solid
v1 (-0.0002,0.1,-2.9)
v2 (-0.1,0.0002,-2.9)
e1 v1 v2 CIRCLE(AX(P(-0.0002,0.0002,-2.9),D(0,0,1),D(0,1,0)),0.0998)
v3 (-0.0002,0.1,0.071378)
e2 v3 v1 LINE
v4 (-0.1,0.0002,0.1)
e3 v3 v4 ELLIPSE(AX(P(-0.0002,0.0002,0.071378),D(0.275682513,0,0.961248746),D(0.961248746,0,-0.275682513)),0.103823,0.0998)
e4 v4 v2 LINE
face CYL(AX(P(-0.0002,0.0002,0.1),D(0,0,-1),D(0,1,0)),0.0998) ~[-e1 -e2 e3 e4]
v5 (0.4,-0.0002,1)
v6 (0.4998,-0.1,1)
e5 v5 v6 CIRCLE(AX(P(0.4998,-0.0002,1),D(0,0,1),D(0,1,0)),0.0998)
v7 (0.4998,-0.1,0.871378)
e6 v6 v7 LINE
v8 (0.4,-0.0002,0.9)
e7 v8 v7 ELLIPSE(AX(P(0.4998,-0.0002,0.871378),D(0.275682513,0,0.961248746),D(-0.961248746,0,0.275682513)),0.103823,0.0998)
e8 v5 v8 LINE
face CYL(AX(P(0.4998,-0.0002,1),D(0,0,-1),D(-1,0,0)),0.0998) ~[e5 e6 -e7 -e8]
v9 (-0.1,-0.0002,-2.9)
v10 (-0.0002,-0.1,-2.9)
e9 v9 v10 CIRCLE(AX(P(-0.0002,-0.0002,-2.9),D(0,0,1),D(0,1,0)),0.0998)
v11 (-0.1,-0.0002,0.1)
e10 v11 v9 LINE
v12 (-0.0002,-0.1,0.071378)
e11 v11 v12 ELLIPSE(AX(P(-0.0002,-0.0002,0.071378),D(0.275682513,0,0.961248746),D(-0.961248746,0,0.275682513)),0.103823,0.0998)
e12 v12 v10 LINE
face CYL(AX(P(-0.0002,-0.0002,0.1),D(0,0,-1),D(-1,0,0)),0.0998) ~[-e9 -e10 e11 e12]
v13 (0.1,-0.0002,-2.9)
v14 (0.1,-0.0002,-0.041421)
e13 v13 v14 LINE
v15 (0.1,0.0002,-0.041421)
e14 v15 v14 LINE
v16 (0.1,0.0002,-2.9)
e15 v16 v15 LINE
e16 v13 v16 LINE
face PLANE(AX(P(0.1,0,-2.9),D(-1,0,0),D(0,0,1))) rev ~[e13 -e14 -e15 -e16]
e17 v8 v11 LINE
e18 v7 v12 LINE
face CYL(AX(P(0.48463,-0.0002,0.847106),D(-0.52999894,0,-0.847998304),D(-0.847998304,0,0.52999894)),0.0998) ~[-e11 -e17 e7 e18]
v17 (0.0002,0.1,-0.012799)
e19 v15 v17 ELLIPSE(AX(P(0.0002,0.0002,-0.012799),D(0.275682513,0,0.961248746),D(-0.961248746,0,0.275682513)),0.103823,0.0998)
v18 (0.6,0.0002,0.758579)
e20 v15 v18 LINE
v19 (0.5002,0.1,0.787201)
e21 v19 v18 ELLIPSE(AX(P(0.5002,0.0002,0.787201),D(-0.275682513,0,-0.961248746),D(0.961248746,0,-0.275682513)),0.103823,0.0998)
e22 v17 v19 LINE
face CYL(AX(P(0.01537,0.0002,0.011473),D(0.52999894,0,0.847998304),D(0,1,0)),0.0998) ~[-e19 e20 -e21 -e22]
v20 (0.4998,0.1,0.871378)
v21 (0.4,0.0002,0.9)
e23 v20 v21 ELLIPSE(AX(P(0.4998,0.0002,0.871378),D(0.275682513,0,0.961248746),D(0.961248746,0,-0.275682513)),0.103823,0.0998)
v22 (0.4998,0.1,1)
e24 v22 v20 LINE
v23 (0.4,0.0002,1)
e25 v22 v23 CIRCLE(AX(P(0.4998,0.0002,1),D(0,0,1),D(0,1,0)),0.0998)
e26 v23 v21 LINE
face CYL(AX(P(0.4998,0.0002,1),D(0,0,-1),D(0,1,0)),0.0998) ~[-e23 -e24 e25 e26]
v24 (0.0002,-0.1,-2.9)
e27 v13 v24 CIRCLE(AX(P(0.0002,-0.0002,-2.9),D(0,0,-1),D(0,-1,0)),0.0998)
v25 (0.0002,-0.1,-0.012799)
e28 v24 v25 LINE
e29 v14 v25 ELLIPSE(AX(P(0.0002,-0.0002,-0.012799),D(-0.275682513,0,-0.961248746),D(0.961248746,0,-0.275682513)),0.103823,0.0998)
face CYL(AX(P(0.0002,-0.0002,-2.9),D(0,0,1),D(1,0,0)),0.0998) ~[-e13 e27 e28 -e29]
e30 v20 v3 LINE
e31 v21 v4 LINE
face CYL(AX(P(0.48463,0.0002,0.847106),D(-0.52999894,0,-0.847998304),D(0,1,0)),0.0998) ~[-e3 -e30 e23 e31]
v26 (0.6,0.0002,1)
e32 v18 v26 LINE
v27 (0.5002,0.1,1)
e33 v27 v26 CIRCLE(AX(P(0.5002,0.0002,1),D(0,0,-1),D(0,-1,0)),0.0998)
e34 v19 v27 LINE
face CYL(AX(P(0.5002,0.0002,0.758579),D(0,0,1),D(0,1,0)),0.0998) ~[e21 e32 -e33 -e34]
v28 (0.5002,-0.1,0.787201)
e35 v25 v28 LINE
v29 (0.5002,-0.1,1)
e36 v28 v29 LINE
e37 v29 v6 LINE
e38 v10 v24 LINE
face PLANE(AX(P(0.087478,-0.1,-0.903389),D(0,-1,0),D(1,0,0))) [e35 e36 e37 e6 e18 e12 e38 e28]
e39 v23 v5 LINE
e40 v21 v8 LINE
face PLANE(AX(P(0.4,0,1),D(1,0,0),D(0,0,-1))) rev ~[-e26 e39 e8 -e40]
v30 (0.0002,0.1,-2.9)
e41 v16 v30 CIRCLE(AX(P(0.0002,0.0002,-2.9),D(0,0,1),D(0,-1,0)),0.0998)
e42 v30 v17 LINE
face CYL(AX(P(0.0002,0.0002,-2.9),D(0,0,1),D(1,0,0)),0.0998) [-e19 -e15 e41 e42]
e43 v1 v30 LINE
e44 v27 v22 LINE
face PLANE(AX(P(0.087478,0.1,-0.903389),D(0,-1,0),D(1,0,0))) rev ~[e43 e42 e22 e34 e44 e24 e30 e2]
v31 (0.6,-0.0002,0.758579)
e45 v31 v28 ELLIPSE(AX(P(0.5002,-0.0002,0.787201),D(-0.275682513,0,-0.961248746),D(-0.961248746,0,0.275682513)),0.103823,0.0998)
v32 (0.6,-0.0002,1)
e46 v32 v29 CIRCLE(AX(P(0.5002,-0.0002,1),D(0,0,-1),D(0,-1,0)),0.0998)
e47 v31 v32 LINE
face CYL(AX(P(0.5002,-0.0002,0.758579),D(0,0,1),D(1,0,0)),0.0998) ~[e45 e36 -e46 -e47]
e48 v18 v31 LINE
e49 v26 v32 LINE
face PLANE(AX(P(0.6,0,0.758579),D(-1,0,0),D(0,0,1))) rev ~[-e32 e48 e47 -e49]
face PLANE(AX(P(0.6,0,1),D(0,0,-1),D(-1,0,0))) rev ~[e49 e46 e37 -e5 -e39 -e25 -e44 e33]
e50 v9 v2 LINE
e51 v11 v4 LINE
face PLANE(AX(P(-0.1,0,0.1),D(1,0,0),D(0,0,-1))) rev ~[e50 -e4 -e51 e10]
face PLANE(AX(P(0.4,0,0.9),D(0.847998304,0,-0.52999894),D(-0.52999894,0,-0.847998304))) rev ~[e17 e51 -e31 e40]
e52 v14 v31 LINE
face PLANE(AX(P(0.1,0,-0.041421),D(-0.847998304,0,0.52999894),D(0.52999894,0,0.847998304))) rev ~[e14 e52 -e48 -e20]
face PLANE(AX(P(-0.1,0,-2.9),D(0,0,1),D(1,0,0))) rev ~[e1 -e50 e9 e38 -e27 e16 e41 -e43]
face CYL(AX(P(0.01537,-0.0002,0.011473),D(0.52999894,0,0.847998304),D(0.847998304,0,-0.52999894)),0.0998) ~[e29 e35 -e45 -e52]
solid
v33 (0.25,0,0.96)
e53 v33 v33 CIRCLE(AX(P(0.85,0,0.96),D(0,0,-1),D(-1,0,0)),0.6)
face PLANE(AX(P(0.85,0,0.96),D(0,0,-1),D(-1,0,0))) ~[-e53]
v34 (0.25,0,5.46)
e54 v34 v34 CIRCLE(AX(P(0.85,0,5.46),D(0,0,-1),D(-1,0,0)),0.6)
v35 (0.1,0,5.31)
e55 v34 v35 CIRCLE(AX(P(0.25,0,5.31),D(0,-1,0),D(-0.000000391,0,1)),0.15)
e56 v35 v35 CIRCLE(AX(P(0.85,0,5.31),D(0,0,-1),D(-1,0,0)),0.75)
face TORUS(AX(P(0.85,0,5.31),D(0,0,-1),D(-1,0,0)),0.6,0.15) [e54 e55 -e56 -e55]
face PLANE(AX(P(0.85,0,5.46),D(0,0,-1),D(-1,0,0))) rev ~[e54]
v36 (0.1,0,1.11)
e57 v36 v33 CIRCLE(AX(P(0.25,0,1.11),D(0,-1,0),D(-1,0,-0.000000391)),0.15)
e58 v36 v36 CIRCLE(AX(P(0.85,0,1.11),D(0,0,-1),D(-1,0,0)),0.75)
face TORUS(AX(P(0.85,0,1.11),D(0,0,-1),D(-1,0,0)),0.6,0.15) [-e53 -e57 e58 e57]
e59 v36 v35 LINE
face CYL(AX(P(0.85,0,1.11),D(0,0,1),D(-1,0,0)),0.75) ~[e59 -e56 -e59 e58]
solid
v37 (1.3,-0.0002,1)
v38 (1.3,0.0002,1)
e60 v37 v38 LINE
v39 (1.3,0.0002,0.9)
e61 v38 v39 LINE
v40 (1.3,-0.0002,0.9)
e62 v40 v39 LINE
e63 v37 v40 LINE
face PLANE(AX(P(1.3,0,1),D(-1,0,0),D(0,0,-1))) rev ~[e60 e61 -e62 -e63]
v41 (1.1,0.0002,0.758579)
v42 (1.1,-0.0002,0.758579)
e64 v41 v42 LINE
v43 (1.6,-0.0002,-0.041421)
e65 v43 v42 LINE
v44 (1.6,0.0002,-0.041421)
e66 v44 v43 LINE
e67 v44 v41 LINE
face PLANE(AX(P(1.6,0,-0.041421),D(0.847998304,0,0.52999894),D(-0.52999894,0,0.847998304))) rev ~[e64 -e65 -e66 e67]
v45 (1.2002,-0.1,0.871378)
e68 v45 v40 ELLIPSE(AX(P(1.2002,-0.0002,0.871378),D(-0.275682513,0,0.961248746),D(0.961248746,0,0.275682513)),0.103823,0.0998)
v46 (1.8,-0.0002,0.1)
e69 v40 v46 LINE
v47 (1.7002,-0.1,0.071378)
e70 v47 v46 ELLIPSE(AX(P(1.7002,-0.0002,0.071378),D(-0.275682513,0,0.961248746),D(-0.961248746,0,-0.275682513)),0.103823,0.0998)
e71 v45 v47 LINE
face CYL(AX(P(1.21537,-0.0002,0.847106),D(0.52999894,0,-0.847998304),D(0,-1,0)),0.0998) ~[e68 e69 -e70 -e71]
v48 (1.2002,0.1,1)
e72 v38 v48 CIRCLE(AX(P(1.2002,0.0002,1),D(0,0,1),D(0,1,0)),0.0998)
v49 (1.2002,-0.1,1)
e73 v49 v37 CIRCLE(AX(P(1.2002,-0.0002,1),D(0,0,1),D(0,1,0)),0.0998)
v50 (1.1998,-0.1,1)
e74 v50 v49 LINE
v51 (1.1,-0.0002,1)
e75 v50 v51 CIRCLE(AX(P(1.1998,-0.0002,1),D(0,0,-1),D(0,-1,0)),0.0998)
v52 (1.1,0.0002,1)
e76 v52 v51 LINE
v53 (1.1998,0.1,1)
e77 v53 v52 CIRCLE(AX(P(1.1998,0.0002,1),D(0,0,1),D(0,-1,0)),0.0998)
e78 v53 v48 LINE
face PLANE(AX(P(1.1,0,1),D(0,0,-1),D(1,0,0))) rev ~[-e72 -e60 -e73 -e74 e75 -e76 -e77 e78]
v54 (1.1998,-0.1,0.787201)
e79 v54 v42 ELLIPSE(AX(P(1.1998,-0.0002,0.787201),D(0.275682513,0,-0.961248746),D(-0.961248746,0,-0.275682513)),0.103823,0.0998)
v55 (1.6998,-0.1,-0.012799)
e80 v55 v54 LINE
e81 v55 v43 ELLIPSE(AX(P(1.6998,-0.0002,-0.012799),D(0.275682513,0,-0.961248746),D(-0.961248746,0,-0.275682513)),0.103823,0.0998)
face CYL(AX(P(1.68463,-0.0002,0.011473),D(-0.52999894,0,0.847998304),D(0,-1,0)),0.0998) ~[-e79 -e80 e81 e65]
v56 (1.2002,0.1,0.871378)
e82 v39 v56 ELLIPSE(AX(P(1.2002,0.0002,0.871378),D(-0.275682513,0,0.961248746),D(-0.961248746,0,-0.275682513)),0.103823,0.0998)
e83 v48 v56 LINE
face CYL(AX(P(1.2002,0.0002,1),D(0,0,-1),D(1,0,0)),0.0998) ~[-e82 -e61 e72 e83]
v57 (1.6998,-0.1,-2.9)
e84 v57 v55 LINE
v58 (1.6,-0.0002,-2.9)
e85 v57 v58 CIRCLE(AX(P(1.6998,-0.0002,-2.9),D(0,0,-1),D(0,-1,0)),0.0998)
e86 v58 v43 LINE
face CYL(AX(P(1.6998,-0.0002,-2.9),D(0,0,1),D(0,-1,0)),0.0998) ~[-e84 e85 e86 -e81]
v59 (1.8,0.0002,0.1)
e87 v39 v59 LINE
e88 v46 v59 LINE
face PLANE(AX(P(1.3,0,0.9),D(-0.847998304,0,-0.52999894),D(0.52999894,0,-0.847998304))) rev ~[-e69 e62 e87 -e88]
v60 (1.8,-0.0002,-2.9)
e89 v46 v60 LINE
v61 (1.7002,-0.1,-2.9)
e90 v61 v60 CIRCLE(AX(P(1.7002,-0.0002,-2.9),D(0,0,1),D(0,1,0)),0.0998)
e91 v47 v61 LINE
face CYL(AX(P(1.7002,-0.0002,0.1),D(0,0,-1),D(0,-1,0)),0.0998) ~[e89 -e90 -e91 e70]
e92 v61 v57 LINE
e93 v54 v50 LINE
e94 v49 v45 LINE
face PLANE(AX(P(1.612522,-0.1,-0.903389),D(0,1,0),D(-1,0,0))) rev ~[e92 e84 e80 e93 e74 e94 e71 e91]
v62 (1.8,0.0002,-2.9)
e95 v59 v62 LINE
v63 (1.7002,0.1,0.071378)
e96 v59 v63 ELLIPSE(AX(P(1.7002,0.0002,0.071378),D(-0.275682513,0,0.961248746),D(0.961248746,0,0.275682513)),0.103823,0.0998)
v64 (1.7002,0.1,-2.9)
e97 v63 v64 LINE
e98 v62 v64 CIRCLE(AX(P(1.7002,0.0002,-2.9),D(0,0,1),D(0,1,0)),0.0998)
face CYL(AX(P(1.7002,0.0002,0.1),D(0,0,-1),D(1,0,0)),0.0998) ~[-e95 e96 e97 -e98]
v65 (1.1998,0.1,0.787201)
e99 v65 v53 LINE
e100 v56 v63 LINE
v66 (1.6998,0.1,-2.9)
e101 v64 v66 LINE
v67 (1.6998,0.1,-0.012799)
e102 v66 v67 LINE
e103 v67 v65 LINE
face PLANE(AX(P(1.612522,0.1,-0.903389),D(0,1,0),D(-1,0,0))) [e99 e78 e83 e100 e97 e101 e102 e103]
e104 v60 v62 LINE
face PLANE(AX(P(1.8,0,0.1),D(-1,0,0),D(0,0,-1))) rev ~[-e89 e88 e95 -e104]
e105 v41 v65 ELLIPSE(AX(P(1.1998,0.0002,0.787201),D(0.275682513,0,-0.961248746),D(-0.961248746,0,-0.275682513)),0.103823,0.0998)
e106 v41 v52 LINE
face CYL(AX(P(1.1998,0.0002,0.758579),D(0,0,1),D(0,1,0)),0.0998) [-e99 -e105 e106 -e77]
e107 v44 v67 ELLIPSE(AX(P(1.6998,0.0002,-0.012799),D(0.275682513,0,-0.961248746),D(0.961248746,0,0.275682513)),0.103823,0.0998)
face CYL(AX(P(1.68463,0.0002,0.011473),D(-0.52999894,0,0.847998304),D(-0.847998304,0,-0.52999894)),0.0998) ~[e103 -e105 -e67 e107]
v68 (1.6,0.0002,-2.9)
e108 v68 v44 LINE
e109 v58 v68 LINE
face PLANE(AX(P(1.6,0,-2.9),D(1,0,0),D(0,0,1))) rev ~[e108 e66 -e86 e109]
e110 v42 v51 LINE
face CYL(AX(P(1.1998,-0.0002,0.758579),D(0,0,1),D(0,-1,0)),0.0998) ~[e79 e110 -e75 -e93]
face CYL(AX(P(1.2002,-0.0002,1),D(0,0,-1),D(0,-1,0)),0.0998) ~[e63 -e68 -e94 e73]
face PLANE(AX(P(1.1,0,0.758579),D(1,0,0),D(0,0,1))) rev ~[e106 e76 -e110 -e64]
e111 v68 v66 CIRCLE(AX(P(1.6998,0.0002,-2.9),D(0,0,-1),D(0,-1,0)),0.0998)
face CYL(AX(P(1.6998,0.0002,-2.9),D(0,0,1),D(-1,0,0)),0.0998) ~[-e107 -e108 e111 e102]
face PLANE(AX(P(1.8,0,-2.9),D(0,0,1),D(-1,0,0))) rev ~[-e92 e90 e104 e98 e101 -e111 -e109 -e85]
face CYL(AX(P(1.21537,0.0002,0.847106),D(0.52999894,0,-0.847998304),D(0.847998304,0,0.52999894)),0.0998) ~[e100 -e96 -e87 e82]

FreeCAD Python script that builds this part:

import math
import FreeCAD as App
import Part
import Sketcher

V = App.Vector


def edges_at(feature, points):
    """Names of the edges that pass closest to the given points."""
    edges = feature.Shape.Edges
    near = lambda p: min(range(len(edges)), key=lambda i: edges[i].distToShape(Part.Vertex(*p))[0])
    return sorted({f"Edge{near(p) + 1}" for p in points})


def add_polygon(sketch, points):
    """Adds a closed chain of lines whose ends are joined by coincident constraints."""
    first, n = sketch.GeometryCount, len(points)
    for a, b in zip(points, points[1:] + points[:1]):
        sketch.addGeometry(Part.LineSegment(App.Vector(*a, 0), App.Vector(*b, 0)), False)
    for i in range(n):
        sketch.addConstraint(Sketcher.Constraint("Coincident", first + i, 2, first + (i + 1) % n, 1))

doc = App.newDocument("Part")
body = doc.addObject("PartDesign::Body", "Body")

# Sketch on XZ plane
sketch1 = body.newObject("Sketcher::SketchObject", "Sketch")
sketch1.AttachmentSupport = (doc.getObject("XZ_Plane"), [""])
sketch1.MapMode = "FlatFace"
sketch1.addGeometry([
    Part.LineSegment(V(0.85, 5.46, 0), V(0.25, 5.46, 0)),  # 0
    Part.ArcOfCircle(Part.Circle(V(0.25, 5.31, 0), V(0, 0, 1), 0.15), math.radians(90), math.radians(180)),  # 1
    Part.LineSegment(V(0.1, 5.31, 0), V(0.1, 1.11, 0)),  # 2
    Part.ArcOfCircle(Part.Circle(V(0.25, 1.11, 0), V(0, 0, 1), 0.15), math.radians(-180), math.radians(-90)),  # 3
    Part.LineSegment(V(0.25, 0.96, 0), V(0.85, 0.96, 0)),  # 4
    Part.LineSegment(V(0.85, 0.96, 0), V(0.85, 5.46, 0)),  # 5
], False)
sketch1.addGeometry(Part.LineSegment(V(0.85, 5.46, 0), V(0.85, 0.96, 0)), True)  # axis
sketch1.addConstraint([
    Sketcher.Constraint("Tangent", 0, 2, 1, 1),
    Sketcher.Constraint("Tangent", 1, 2, 2, 1),
    Sketcher.Constraint("Tangent", 2, 2, 3, 1),
    Sketcher.Constraint("Tangent", 3, 2, 4, 1),
    Sketcher.Constraint("Coincident", 4, 2, 5, 1),
    Sketcher.Constraint("Coincident", 5, 2, 0, 1),
    Sketcher.Constraint("Horizontal", 0),
    Sketcher.Constraint("Vertical", 2),
    Sketcher.Constraint("Horizontal", 4),
    Sketcher.Constraint("Vertical", 5),
    Sketcher.Constraint("Vertical", 6),
    Sketcher.Constraint("Coincident", 6, 1, 5, 2),
    Sketcher.Constraint("Equal", 1, 3),
    Sketcher.Constraint("Horizontal", 3, 2, 6, 2),
    Sketcher.Constraint("Radius", 1, 0.15),
    Sketcher.Constraint("DistanceX", 0, 2, 0, 1, 0.6),
    Sketcher.Constraint("DistanceY", 2, 2, 2, 1, 4.2),
    Sketcher.Constraint("DistanceX", -1, 1, 1, 2, 0.1),
    Sketcher.Constraint("DistanceY", -1, 1, 1, 3, 5.31),
])
revolution = body.newObject("PartDesign::Revolution", "Revolution")
revolution.Profile = sketch1
revolution.ReferenceAxis = (sketch1, ["Axis0"])
revolution.Angle = 360
body2 = doc.addObject("PartDesign::Body", "Body001")
body2.AllowCompound = True

# Sketch on XZ plane
sketch2 = body2.newObject("Sketcher::SketchObject", "Sketch001")
sketch2.AttachmentSupport = (doc.getObject("XZ_Plane001"), [""])
sketch2.MapMode = "FlatFace"
add_polygon(sketch2, [(0.1, -2.9), (0.1, -0.04), (0.6, 0.76), (0.6, 1), (0.4, 1), (0.4, 0.9), (-0.1, 0.1), (-0.1, -2.9)])  # lines 0-7
add_polygon(sketch2, [(1.3, 1), (1.1, 1), (1.1, 0.76), (1.6, -0.04), (1.6, -2.9), (1.8, -2.9), (1.8, 0.1), (1.3, 0.9)])  # lines 8-15
sketch2.addConstraint([
    Sketcher.Constraint("Vertical", 0),
    Sketcher.Constraint("Vertical", 2),
    Sketcher.Constraint("Horizontal", 3),
    Sketcher.Constraint("Vertical", 4),
    Sketcher.Constraint("Vertical", 6),
    Sketcher.Constraint("Horizontal", 7),
    Sketcher.Constraint("Horizontal", 8),
    Sketcher.Constraint("Vertical", 9),
    Sketcher.Constraint("Vertical", 11),
    Sketcher.Constraint("Horizontal", 12),
    Sketcher.Constraint("Vertical", 13),
    Sketcher.Constraint("Vertical", 15),
    Sketcher.Constraint("Parallel", 1, 5),
    Sketcher.Constraint("Parallel", 10, 14),
    Sketcher.Constraint("Horizontal", 3, 2, 8, 2),
    Sketcher.Constraint("Horizontal", 1, 2, 9, 2),
    Sketcher.Constraint("Horizontal", 0, 2, 10, 2),
    Sketcher.Constraint("Horizontal", 7, 2, 11, 2),
    Sketcher.Constraint("Horizontal", 5, 2, 13, 2),
    Sketcher.Constraint("Horizontal", 4, 2, 14, 2),
    Sketcher.Constraint("Equal", 3, 7),
    Sketcher.Constraint("Equal", 7, 8),
    Sketcher.Constraint("Equal", 5, 10),
    Sketcher.Constraint("DistanceY", 6, 2, 6, 1, 3.0),
    Sketcher.Constraint("DistanceX", 3, 2, 3, 1, 0.2),
    Sketcher.Constraint("DistanceY", 4, 2, 4, 1, 0.1),
    Sketcher.Constraint("DistanceY", -1, 1, 2, 2, 1.0),
    Sketcher.Constraint("DistanceX", 0, 2, 8, 2, 1.0),
    Sketcher.Constraint("DistanceX", -1, 1, 0, 2, 0.1),
    Sketcher.Constraint("DistanceX", -1, 1, 1, 2, 0.6),
    Sketcher.Constraint("DistanceY", -1, 1, 5, 2, 0.1),
    Sketcher.Constraint("DistanceY", 0, 1, 0, 2, 2.858579),
])
pad1 = body2.newObject("PartDesign::Pad", "Pad")
pad1.Profile = sketch2
pad1.Length = 0.2
pad1.Midplane = True
doc.recompute()

fillet = body2.newObject("PartDesign::Fillet", "Fillet")
fillet.Base = (pad1, edges_at(pad1, [
    (0.15, -0.1, 0.5),
    (0.4, -0.1, 0.95),
    (0.6, -0.1, 0.879),
    (0.35, -0.1, 0.359),
    (0.1, -0.1, -1.471),
    (-0.1, -0.1, -1.4),
    (0.1, 0.1, -1.471),
    (0.35, 0.1, 0.359),
    (0.6, 0.1, 0.879),
    (1.35, -0.1, 0.359),
    (1.1, -0.1, 0.879),
    (1.6, -0.1, -1.471),
    (1.8, -0.1, -1.4),
    (1.55, -0.1, 0.5),
    (1.3, -0.1, 0.95),
    (1.3, 0.1, 0.95),
    (1.55, 0.1, 0.5),
    (1.8, 0.1, -1.4),
    (1.6, 0.1, -1.471),
    (1.35, 0.1, 0.359),
    (1.1, 0.1, 0.879),
    (0.4, 0.1, 0.95),
    (-0.1, 0.1, -1.4),
    (0.15, 0.1, 0.5),
]))
fillet.Radius = 0.0998

doc.recompute()
